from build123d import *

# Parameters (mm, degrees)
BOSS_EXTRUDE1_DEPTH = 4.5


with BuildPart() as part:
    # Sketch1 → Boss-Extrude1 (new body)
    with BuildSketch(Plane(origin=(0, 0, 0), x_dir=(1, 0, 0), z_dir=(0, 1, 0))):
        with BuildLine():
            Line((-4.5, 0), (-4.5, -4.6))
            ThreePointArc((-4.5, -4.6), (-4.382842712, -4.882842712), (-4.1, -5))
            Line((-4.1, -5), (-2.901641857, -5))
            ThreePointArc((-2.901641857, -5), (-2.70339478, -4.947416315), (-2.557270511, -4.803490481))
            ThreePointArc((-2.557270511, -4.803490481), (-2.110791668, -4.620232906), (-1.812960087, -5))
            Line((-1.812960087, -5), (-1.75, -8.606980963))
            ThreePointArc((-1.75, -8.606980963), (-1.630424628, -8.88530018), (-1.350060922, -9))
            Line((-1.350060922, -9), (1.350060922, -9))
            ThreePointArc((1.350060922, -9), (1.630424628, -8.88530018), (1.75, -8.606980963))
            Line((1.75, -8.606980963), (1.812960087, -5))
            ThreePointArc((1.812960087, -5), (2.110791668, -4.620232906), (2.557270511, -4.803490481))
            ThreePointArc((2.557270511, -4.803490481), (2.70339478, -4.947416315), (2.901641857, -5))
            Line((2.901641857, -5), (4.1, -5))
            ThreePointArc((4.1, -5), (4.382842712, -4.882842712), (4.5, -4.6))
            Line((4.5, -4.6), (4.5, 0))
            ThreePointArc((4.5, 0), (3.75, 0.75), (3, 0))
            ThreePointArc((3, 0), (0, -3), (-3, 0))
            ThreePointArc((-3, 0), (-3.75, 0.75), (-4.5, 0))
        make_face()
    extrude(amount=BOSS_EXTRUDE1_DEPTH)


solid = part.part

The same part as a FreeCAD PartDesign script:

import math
import FreeCAD as App
import Part
import Sketcher

V = App.Vector
Q = App.Units.Quantity

doc = App.newDocument("Part")
body = doc.addObject("PartDesign::Body", "Body")

sketch1 = body.newObject("Sketcher::SketchObject", "Sketch")
sketch1.AttachmentSupport = (doc.getObject("XZ_Plane"), [""])
sketch1.MapMode = "FlatFace"
sketch1.addGeometry([
    Part.LineSegment(V(-4.5, 0, 0), V(-4.5, 4.6, 0)),
    Part.ArcOfCircle(Part.Circle(V(-4.1, 4.6, 0), V(0, 0, 1), 0.4), math.radians(90), math.radians(180)),
    Part.LineSegment(V(-4.1, 5, 0), V(-2.9, 5, 0)),
    Part.ArcOfCircle(Part.Circle(V(-2.9, 4.6, 0), V(0, 0, 1), 0.4), math.radians(31), math.radians(90)),
    Part.ArcOfCircle(Part.Circle(V(-2.21, 5.01, 0), V(0, 0, 1), 0.4), math.radians(-149), math.radians(-1)),
    Part.LineSegment(V(-1.81, 5, 0), V(-1.75, 8.61, 0)),
    Part.ArcOfCircle(Part.Circle(V(-1.35, 8.6, 0), V(0, 0, 1), 0.4), math.radians(90), math.radians(179)),
    Part.LineSegment(V(-1.35, 9, 0), V(1.35, 9, 0)),
    Part.ArcOfCircle(Part.Circle(V(1.35, 8.6, 0), V(0, 0, 1), 0.4), math.radians(1), math.radians(90)),
    Part.LineSegment(V(1.75, 8.61, 0), V(1.81, 5, 0)),
    Part.ArcOfCircle(Part.Circle(V(2.21, 5.01, 0), V(0, 0, 1), 0.4), math.radians(-179), math.radians(-31)),
    Part.ArcOfCircle(Part.Circle(V(2.9, 4.6, 0), V(0, 0, 1), 0.4), math.radians(90), math.radians(149)),
    Part.LineSegment(V(2.9, 5, 0), V(4.1, 5, 0)),
    Part.ArcOfCircle(Part.Circle(V(4.1, 4.6, 0), V(0, 0, 1), 0.4), math.radians(0), math.radians(90)),
    Part.LineSegment(V(4.5, 4.6, 0), V(4.5, 0, 0)),
    Part.ArcOfCircle(Part.Circle(V(3.75, 0, 0), V(0, 0, 1), 0.75), math.radians(180), math.radians(360)),
    Part.ArcOfCircle(Part.Circle(V(0, 0, 0), V(0, 0, 1), 3), math.radians(0), math.radians(180)),
    Part.ArcOfCircle(Part.Circle(V(-3.75, 0, 0), V(0, 0, 1), 0.75), math.radians(180), math.radians(360)),
], False)
sketch1.addConstraint([
    Sketcher.Constraint("Tangent", 0, 2, 1, 2),
    Sketcher.Constraint("Tangent", 1, 1, 2, 1),
    Sketcher.Constraint("Tangent", 2, 2, 3, 2),
    Sketcher.Constraint("Tangent", 3, 1, 4, 1),
    Sketcher.Constraint("Tangent", 4, 2, 5, 1),
    Sketcher.Constraint("Tangent", 5, 2, 6, 2),
    Sketcher.Constraint("Tangent", 6, 1, 7, 1),
    Sketcher.Constraint("Tangent", 7, 2, 8, 2),
    Sketcher.Constraint("Tangent", 8, 1, 9, 1),
    Sketcher.Constraint("Tangent", 9, 2, 10, 1),
    Sketcher.Constraint("Tangent", 10, 2, 11, 2),
    Sketcher.Constraint("Tangent", 11, 1, 12, 1),
    Sketcher.Constraint("Tangent", 12, 2, 13, 2),
    Sketcher.Constraint("Tangent", 13, 1, 14, 1),
    Sketcher.Constraint("Tangent", 14, 2, 15, 2),
    Sketcher.Constraint("Tangent", 15, 1, 16, 1),
    Sketcher.Constraint("Tangent", 16, 2, 17, 2),
    Sketcher.Constraint("Tangent", 17, 1, 0, 1),
    Sketcher.Constraint("Vertical", 0),
    Sketcher.Constraint("Horizontal", 2),
    Sketcher.Constraint("Horizontal", 7),
    Sketcher.Constraint("Horizontal", 12),
    Sketcher.Constraint("Vertical", 14),
    Sketcher.Constraint("Coincident", 16, 3, -1, 1),
    Sketcher.Constraint("Equal", 1, 3),
    Sketcher.Constraint("Equal", 3, 4),
    Sketcher.Constraint("Equal", 4, 6),
    Sketcher.Constraint("Equal", 6, 8),
    Sketcher.Constraint("Equal", 8, 10),
    Sketcher.Constraint("Equal", 10, 11),
    Sketcher.Constraint("Equal", 11, 13),
    Sketcher.Constraint("Equal", 15, 17),
    Sketcher.Constraint("Symmetric", 4, 3, 10, 3, -2),
    Sketcher.Constraint("PointOnObject", 15, 3, -1),
    Sketcher.Constraint("PointOnObject", 17, 3, -1),
    Sketcher.Constraint("Horizontal", 3, 3, 11, 3),
    Sketcher.Constraint("Horizontal", 2, 2, 4, 2),
    Sketcher.Constraint("Horizontal", 5, 2, 8, 1),
    Sketcher.Constraint("Radius", 16, 3.0),
    Sketcher.Constraint("Radius", 1, 0.4),
    Sketcher.Constraint("Angle", 5, Q("89 deg")),
    Sketcher.Constraint("Radius", 15, 0.75),
    Sketcher.Constraint("DistanceY", 0, 1, 0, 2, 4.6),
    Sketcher.Constraint("DistanceY", -1, 1, 6, 1, 9.0),
    Sketcher.Constraint("DistanceX", 5, 2, 8, 1, 3.5),
])
pad1 = body.newObject("PartDesign::Pad", "Pad")
pad1.Profile = sketch1
pad1.Length = 4.5
pad1.Reversed = True

doc.recompute()
